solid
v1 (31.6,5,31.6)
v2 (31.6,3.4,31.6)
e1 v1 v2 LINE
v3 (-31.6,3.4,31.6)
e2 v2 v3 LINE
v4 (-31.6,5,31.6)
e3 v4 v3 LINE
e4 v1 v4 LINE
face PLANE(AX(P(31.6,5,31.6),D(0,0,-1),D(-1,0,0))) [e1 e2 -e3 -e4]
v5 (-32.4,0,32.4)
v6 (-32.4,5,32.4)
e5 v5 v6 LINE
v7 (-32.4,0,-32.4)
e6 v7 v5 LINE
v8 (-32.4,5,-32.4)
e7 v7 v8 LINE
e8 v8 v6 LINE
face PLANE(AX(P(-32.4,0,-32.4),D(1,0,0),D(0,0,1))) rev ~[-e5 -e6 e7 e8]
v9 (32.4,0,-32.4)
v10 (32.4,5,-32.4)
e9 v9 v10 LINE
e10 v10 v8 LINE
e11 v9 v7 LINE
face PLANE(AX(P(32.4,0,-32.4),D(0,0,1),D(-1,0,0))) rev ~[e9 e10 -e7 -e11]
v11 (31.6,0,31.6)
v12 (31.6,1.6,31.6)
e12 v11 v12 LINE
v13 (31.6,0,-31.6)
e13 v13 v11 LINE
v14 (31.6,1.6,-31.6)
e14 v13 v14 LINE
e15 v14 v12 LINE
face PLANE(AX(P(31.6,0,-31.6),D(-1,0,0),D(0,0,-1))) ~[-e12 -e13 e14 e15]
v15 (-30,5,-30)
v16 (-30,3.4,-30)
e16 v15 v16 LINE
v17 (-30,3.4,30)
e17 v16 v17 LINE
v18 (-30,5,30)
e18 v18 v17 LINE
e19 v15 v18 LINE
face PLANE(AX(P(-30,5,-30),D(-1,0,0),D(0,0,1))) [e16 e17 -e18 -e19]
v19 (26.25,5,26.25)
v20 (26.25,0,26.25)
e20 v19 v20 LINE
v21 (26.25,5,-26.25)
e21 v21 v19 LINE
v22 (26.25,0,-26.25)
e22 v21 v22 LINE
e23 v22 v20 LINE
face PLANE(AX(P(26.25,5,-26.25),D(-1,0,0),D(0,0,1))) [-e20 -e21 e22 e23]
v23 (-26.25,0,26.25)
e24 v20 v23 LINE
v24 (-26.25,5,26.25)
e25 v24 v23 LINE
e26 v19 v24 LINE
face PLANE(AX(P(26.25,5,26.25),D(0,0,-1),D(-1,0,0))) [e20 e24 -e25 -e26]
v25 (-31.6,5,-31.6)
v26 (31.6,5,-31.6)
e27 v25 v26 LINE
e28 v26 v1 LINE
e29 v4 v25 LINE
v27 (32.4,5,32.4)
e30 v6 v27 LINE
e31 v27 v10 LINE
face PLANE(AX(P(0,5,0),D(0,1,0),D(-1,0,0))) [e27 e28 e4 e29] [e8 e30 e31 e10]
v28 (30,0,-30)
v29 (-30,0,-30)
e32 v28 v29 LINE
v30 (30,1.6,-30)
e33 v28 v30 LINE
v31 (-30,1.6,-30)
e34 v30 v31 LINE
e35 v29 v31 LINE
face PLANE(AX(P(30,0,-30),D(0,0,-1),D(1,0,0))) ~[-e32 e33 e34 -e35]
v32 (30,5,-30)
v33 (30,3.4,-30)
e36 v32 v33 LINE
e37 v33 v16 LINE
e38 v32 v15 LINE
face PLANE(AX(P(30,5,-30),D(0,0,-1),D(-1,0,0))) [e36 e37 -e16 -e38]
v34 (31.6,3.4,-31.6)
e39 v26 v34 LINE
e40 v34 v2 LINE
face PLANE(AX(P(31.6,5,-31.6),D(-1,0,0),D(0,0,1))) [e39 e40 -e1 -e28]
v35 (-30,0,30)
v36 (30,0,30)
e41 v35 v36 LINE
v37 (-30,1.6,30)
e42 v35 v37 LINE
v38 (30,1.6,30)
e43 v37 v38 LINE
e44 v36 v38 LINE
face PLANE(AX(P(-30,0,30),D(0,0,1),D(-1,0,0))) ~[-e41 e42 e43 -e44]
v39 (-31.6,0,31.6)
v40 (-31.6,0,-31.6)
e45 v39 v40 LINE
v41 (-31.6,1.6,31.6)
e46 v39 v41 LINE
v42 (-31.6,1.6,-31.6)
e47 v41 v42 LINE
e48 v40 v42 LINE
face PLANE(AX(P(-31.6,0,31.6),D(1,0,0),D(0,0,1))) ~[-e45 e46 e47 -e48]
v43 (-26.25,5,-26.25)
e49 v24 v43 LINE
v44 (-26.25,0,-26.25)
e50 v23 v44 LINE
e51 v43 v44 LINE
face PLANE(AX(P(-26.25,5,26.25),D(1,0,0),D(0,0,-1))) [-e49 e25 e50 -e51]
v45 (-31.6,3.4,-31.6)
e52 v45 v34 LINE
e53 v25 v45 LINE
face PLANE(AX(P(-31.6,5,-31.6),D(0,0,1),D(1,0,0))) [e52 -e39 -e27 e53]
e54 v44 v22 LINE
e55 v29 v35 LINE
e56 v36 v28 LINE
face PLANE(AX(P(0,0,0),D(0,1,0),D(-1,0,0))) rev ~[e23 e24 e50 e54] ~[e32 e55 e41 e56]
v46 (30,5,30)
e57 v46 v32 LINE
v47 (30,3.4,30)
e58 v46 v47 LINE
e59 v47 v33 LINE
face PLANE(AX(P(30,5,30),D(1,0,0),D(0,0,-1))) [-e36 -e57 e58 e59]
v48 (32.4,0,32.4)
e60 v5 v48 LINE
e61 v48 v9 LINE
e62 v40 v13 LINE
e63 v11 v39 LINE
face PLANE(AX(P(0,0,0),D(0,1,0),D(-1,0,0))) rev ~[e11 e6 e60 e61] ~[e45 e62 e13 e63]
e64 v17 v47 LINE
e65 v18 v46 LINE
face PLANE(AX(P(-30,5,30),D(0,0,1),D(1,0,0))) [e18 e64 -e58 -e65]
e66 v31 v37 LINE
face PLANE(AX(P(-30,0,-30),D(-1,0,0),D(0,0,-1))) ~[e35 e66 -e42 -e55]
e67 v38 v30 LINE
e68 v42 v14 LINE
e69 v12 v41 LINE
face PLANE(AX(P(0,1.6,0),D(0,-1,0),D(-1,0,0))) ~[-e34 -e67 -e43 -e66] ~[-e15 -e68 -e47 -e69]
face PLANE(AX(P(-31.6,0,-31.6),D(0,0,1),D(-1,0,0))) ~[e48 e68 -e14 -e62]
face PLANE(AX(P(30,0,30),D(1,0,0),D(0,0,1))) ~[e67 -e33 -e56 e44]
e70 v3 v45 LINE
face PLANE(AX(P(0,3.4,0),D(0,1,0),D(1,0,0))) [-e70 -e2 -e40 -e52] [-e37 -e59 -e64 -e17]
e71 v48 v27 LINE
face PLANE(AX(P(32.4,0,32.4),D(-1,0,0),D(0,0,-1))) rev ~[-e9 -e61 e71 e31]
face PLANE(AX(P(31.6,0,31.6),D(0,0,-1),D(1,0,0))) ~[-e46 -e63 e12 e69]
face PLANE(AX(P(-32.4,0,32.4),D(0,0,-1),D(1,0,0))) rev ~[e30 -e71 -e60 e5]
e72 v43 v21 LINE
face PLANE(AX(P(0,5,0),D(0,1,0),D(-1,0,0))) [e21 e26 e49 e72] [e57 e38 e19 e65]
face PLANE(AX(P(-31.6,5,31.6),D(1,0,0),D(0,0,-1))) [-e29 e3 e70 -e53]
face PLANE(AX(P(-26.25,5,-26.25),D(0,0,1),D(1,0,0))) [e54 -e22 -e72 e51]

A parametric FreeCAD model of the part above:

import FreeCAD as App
import Part
import Sketcher

V = App.Vector


def add_polygon(sketch, points):
    """Adds a closed chain of lines whose ends are joined by coincident constraints."""
    first, n = sketch.GeometryCount, len(points)
    for a, b in zip(points, points[1:] + points[:1]):
        sketch.addGeometry(Part.LineSegment(App.Vector(*a, 0), App.Vector(*b, 0)), False)
    for i in range(n):
        sketch.addConstraint(Sketcher.Constraint("Coincident", first + i, 2, first + (i + 1) % n, 1))

doc = App.newDocument("Part")
body = doc.addObject("PartDesign::Body", "Body")

sketch1 = body.newObject("Sketcher::SketchObject", "Sketch")
sketch1.AttachmentSupport = (doc.getObject("XZ_Plane"), [""])
sketch1.MapMode = "FlatFace"
add_polygon(sketch1, [(32, 32), (32, -32), (-32, -32), (-32, 32)])
sketch1.addConstraint([
    Sketcher.Constraint("Vertical", 0),
    Sketcher.Constraint("Horizontal", 1),
    Sketcher.Constraint("Vertical", 2),
    Sketcher.Constraint("Horizontal", 3),
    Sketcher.Constraint("Symmetric", 0, 2, 2, 2, -1, 1),
    Sketcher.Constraint("Equal", 3, 0),
    Sketcher.Constraint("DistanceX", 1, 2, 1, 1, 64.8),
])
pad1 = body.newObject("PartDesign::Pad", "Pad")
pad1.Profile = sketch1
pad1.Length = 5
pad1.Reversed = True

sketch2 = body.newObject("Sketcher::SketchObject", "Sketch001")
sketch2.AttachmentSupport = (doc.getObject("XZ_Plane"), [""])
sketch2.MapMode = "FlatFace"
sketch2.AttachmentOffset = App.Placement(V(0, 0, -5), App.Rotation())
add_polygon(sketch2, [(-32, 32), (32, 32), (32, -32), (-32, -32)])
add_polygon(sketch2, [(-30, -30), (30, -30), (30, 30), (-30, 30)])
sketch2.addConstraint([
    Sketcher.Constraint("Horizontal", 0),
    Sketcher.Constraint("Vertical", 1),
    Sketcher.Constraint("Horizontal", 2),
    Sketcher.Constraint("Vertical", 3),
    Sketcher.Constraint("Horizontal", 4),
    Sketcher.Constraint("Vertical", 5),
    Sketcher.Constraint("Horizontal", 6),
    Sketcher.Constraint("Vertical", 7),
    Sketcher.Constraint("Symmetric", 0, 2, 2, 2, -1, 1),
    Sketcher.Constraint("Symmetric", 4, 2, 6, 2, -1, 1),
    Sketcher.Constraint("Equal", 2, 1),
    Sketcher.Constraint("Equal", 6, 5),
    Sketcher.Constraint("DistanceX", 4, 1, 4, 2, 60.0),
    Sketcher.Constraint("DistanceX", 4, 2, 1, 2, 1.6),
])
pocket1 = body.newObject("PartDesign::Pocket", "Pocket")
pocket1.Profile = sketch2
pocket1.Length = 1.6
pocket1.Reversed = True

sketch3 = body.newObject("Sketcher::SketchObject", "Sketch002")
sketch3.AttachmentSupport = (doc.getObject("XZ_Plane"), [""])
sketch3.MapMode = "FlatFace"
sketch3.AttachmentOffset = App.Placement(V(0, 0, -5), App.Rotation())
add_polygon(sketch3, [(-26, 26), (26, 26), (26, -26), (-26, -26)])
sketch3.addConstraint([
    Sketcher.Constraint("Horizontal", 0),
    Sketcher.Constraint("Vertical", 1),
    Sketcher.Constraint("Horizontal", 2),
    Sketcher.Constraint("Vertical", 3),
    Sketcher.Constraint("Symmetric", 0, 2, 2, 2, -1, 1),
    Sketcher.Constraint("Equal", 2, 1),
    Sketcher.Constraint("DistanceX", 0, 1, 0, 2, 52.5),
])
pocket2 = body.newObject("PartDesign::Pocket", "Pocket001")
pocket2.Profile = sketch3
pocket2.Length = 5
pocket2.Reversed = True
doc.recompute()

datumplane = body.newObject("PartDesign::Plane", "DatumPlane")
datumplane.AttachmentSupport = (doc.getObject("XZ_Plane"), [""])
datumplane.MapMode = "FlatFace"
datumplane.AttachmentOffset = App.Placement(V(0, 0, -2.5), App.Rotation())
mirrored = body.newObject("PartDesign::Mirrored", "Mirrored")
mirrored.Originals = [pocket1]
mirrored.MirrorPlane = (datumplane, [""])
body.Tip = mirrored

doc.recompute()
